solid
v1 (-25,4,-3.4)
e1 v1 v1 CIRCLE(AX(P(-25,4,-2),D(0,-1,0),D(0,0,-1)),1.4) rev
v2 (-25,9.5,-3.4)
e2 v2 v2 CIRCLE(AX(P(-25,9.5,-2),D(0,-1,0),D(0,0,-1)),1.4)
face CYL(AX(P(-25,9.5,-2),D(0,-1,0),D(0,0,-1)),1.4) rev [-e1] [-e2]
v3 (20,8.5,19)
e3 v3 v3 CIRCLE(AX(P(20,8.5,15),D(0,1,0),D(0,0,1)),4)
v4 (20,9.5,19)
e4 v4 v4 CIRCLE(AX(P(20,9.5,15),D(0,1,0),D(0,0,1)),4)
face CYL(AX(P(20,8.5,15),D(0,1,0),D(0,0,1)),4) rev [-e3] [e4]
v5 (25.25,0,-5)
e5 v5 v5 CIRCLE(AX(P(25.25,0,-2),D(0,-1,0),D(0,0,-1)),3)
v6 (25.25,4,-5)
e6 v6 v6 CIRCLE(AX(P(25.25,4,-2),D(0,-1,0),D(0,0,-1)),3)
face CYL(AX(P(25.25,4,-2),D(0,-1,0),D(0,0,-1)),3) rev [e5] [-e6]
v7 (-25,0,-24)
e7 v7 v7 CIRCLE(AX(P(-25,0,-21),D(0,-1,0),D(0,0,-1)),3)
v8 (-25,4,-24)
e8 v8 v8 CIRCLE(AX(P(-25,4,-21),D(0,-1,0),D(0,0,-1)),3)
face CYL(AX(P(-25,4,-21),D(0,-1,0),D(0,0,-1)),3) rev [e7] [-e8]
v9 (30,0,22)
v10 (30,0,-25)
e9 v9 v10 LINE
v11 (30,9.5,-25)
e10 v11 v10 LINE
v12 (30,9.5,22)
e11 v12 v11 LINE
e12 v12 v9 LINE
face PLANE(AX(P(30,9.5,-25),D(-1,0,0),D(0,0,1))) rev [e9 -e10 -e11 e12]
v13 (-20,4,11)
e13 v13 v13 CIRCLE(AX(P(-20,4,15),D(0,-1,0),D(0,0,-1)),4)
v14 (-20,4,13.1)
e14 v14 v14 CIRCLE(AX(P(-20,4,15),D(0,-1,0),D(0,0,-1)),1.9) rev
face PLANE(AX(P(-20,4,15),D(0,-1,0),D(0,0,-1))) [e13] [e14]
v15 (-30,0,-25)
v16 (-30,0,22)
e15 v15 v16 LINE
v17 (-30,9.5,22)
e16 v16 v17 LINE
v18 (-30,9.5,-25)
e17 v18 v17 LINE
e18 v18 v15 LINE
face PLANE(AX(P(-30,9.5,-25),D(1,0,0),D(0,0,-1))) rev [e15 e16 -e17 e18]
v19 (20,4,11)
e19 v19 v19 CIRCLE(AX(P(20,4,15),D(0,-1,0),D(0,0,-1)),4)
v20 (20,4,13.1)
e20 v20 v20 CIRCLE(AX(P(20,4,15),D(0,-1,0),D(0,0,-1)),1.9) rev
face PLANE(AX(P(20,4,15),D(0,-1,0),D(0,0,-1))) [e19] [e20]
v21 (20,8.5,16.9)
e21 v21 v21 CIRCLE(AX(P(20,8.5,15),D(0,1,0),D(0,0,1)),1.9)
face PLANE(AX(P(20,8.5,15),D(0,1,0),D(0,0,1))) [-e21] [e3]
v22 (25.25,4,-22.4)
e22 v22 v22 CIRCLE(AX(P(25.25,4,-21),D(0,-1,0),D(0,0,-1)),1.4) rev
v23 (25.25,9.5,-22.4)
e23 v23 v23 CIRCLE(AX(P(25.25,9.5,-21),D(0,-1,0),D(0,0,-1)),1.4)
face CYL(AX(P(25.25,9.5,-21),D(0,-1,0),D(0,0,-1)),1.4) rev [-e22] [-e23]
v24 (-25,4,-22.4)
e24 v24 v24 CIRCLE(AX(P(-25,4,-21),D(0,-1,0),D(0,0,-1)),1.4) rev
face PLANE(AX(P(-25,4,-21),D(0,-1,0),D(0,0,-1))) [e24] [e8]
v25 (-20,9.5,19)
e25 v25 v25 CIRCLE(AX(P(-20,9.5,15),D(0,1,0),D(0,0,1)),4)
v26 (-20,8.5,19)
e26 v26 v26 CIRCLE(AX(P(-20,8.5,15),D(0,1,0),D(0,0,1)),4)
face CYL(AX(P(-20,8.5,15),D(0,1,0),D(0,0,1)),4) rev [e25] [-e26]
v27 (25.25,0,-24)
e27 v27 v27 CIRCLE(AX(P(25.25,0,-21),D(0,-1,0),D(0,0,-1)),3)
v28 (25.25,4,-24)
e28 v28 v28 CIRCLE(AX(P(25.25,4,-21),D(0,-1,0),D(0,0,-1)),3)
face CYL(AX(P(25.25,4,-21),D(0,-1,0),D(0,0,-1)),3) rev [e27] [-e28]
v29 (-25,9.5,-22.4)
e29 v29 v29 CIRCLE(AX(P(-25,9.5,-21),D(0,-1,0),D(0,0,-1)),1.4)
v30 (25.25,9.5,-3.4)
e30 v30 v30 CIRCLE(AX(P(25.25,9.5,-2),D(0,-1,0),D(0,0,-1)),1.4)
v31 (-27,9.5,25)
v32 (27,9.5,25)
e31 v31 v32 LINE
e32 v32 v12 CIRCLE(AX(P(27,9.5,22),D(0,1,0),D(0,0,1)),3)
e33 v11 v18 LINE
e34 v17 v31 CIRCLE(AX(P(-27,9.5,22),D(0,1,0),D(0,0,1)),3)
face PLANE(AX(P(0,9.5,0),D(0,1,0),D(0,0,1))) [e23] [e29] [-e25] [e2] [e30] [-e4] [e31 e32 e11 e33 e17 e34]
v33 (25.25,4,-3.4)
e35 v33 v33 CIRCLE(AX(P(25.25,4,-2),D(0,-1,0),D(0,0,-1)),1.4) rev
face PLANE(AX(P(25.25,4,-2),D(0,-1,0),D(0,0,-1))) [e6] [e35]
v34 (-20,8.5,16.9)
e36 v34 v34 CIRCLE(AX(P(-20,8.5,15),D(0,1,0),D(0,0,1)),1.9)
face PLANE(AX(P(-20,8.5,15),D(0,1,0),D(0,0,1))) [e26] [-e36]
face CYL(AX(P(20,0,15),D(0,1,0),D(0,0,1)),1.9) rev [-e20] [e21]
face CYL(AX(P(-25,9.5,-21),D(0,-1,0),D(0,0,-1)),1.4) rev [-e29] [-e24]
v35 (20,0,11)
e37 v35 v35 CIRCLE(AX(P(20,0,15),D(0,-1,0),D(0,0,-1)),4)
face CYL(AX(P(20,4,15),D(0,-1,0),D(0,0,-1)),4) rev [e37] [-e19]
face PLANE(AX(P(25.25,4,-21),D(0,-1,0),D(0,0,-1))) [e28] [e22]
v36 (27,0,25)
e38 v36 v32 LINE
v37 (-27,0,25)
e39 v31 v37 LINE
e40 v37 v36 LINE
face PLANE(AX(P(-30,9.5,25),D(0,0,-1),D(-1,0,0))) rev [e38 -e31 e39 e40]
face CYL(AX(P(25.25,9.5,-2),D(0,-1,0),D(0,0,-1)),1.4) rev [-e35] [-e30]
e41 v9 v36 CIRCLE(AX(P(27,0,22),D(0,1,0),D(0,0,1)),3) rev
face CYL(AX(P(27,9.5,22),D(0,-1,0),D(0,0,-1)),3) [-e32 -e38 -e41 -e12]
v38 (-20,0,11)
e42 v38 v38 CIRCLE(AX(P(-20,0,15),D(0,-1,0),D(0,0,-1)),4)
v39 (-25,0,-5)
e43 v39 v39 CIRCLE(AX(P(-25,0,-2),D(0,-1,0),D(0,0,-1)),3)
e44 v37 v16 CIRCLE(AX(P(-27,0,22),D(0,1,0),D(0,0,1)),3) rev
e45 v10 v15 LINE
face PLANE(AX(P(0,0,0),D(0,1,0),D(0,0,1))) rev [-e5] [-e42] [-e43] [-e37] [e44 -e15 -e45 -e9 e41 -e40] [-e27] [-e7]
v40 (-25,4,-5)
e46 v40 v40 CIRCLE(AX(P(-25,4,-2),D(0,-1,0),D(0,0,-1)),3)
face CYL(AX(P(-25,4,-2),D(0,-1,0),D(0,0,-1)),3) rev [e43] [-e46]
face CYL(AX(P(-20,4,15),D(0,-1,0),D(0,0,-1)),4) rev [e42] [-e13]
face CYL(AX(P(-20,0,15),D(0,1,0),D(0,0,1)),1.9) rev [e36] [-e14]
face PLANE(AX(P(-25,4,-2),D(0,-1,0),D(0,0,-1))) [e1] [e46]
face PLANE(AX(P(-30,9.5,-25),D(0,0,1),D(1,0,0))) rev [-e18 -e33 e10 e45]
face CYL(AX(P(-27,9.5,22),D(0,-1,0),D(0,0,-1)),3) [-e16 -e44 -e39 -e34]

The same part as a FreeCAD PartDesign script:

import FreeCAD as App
import Part
import Sketcher

V = App.Vector
Q = App.Units.Quantity


def edges_at(feature, points):
    """Names of the edges that pass closest to the given points."""
    edges = feature.Shape.Edges
    near = lambda p: min(range(len(edges)), key=lambda i: edges[i].distToShape(Part.Vertex(*p))[0])
    return sorted({f"Edge{near(p) + 1}" for p in points})


def add_polygon(sketch, points):
    """Adds a closed chain of lines whose ends are joined by coincident constraints."""
    first, n = sketch.GeometryCount, len(points)
    for a, b in zip(points, points[1:] + points[:1]):
        sketch.addGeometry(Part.LineSegment(App.Vector(*a, 0), App.Vector(*b, 0)), False)
    for i in range(n):
        sketch.addConstraint(Sketcher.Constraint("Coincident", first + i, 2, first + (i + 1) % n, 1))

doc = App.newDocument("Part")
params = doc.addObject("Spreadsheet::Sheet", "Params")
for row, (alias, value) in enumerate([
    ("sketch1_width", "60 mm"),
    ("sketch1_height", "50 mm"),
    ("pad1_length", "9.5 mm"),
    ("fillet_radius", "3 mm"),
    ("sketch2_diameter", "8 mm"),
    ("pocket1_length", "1 mm"),
    ("sketch3_diameter", "3.8 mm"),
    ("sketch4_diameter", "2.8 mm"),
    ("sketch5_diameter", "8 mm"),
    ("sketch5_diameter2", "6 mm"),
    ("pocket4_length", "4 mm"),
], start=1):
    params.set(f"A{row}", alias)
    params.set(f"B{row}", "=" + value)
    params.setAlias(f"B{row}", alias)

body = doc.addObject("PartDesign::Body", "Body")

sketch1 = doc.addObject("Sketcher::SketchObject", "Sketch")
body.addObject(sketch1)
sketch1.AttachmentSupport = (doc.XZ_Plane, [""])
sketch1.MapMode = "FlatFace"
add_polygon(sketch1, [(-30, -25), (-30, 25), (30, 25), (30, -25)])
sketch1.addConstraint(Sketcher.Constraint("Vertical", 0))
sketch1.addConstraint(Sketcher.Constraint("Horizontal", 1))
sketch1.addConstraint(Sketcher.Constraint("Vertical", 2))
sketch1.addConstraint(Sketcher.Constraint("Horizontal", 3))
sketch1.addConstraint(Sketcher.Constraint("Symmetric", 0, 2, 2, 2, -1, 1))
sketch1.addConstraint(Sketcher.Constraint("DistanceX", 1, 1, 1, 2, Q("60 mm")))
sketch1.addConstraint(Sketcher.Constraint("DistanceY", 0, 1, 0, 2, Q("50 mm")))
sketch1.setExpression("Constraints[9]", "Params.sketch1_width")
sketch1.setExpression("Constraints[10]", "Params.sketch1_height")
pad1 = doc.addObject("PartDesign::Pad", "Pad")
body.addObject(pad1)
pad1.Profile = sketch1
pad1.setExpression("Length", "Params.pad1_length")
pad1.Reversed = True
doc.recompute()

fillet = doc.addObject("PartDesign::Fillet", "Fillet")
body.addObject(fillet)
fillet.Base = (pad1, edges_at(pad1, [(30, 4.75, 25), (-30, 4.75, 25)]))
fillet.setExpression("Radius", "Params.fillet_radius")

sketch2 = doc.addObject("Sketcher::SketchObject", "Sketch001")
body.addObject(sketch2)
sketch2.AttachmentSupport = (doc.XZ_Plane, [""])
sketch2.MapMode = "FlatFace"
sketch2.AttachmentOffset = App.Placement(V(0, 0, -9.5), App.Rotation())
sketch2.addGeometry(Part.Circle(V(-20, 15, 0), V(0, 0, 1), 4), False)
sketch2.addGeometry(Part.Circle(V(20, 15, 0), V(0, 0, 1), 4), False)
sketch2.addConstraint(Sketcher.Constraint("Equal", 0, 1))
sketch2.addConstraint(Sketcher.Constraint("Symmetric", 0, 3, 1, 3, -2))
sketch2.addConstraint(Sketcher.Constraint("Diameter", 0, Q("8 mm")))
sketch2.addConstraint(Sketcher.Constraint("DistanceX", 0, 3, -1, 1, Q("20 mm")))
sketch2.addConstraint(Sketcher.Constraint("DistanceY", -1, 1, 0, 3, Q("15 mm")))
sketch2.setExpression("Constraints[2]", "Params.sketch2_diameter")
pocket1 = doc.addObject("PartDesign::Pocket", "Pocket")
body.addObject(pocket1)
pocket1.Profile = sketch2
pocket1.setExpression("Length", "Params.pocket1_length")
pocket1.Reversed = True

sketch3 = doc.addObject("Sketcher::SketchObject", "Sketch002")
body.addObject(sketch3)
sketch3.AttachmentSupport = (doc.XZ_Plane, [""])
sketch3.MapMode = "FlatFace"
sketch3.AttachmentOffset = App.Placement(V(0, 0, -9.5), App.Rotation())
sketch3.addGeometry(Part.Circle(V(-20, 15, 0), V(0, 0, 1), 1.9), False)
sketch3.addGeometry(Part.Circle(V(20, 15, 0), V(0, 0, 1), 1.9), False)
sketch3.addConstraint(Sketcher.Constraint("Equal", 0, 1))
sketch3.addConstraint(Sketcher.Constraint("Symmetric", 0, 3, 1, 3, -2))
sketch3.addConstraint(Sketcher.Constraint("Diameter", 0, Q("3.8 mm")))
sketch3.addConstraint(Sketcher.Constraint("DistanceX", 0, 3, -1, 1, Q("20 mm")))
sketch3.addConstraint(Sketcher.Constraint("DistanceY", -1, 1, 0, 3, Q("15 mm")))
sketch3.setExpression("Constraints[2]", "Params.sketch3_diameter")
pocket2 = doc.addObject("PartDesign::Pocket", "Pocket001")
body.addObject(pocket2)
pocket2.Profile = sketch3
pocket2.Type = "ThroughAll"
pocket2.Reversed = True

sketch4 = doc.addObject("Sketcher::SketchObject", "Sketch003")
body.addObject(sketch4)
sketch4.AttachmentSupport = (doc.XZ_Plane, [""])
sketch4.MapMode = "FlatFace"
sketch4.addGeometry(Part.Circle(V(-25, -21, 0), V(0, 0, 1), 1.4), False)
sketch4.addGeometry(Part.Circle(V(-25, -2, 0), V(0, 0, 1), 1.4), False)
sketch4.addGeometry(Part.Circle(V(25.25, -21, 0), V(0, 0, 1), 1.4), False)
sketch4.addGeometry(Part.Circle(V(25.25, -2, 0), V(0, 0, 1), 1.4), False)
sketch4.addConstraint(Sketcher.Constraint("Equal", 0, 1))
sketch4.addConstraint(Sketcher.Constraint("Equal", 1, 2))
sketch4.addConstraint(Sketcher.Constraint("Equal", 2, 3))
sketch4.addConstraint(Sketcher.Constraint("Horizontal", 0, 3, 2, 3))
sketch4.addConstraint(Sketcher.Constraint("Horizontal", 1, 3, 3, 3))
sketch4.addConstraint(Sketcher.Constraint("Vertical", 0, 3, 1, 3))
sketch4.addConstraint(Sketcher.Constraint("Vertical", 2, 3, 3, 3))
sketch4.addConstraint(Sketcher.Constraint("Diameter", 0, Q("2.8 mm")))
sketch4.addConstraint(Sketcher.Constraint("DistanceX", 0, 3, -1, 1, Q("25 mm")))
sketch4.addConstraint(Sketcher.Constraint("DistanceY", 0, 3, -1, 1, Q("21 mm")))
sketch4.addConstraint(Sketcher.Constraint("DistanceY", 1, 3, -1, 1, Q("2 mm")))
sketch4.addConstraint(Sketcher.Constraint("DistanceX", -1, 1, 2, 3, Q("25.25 mm")))
sketch4.setExpression("Constraints[7]", "Params.sketch4_diameter")
pocket3 = doc.addObject("PartDesign::Pocket", "Pocket002")
body.addObject(pocket3)
pocket3.Profile = sketch4
pocket3.Type = "ThroughAll"

sketch5 = doc.addObject("Sketcher::SketchObject", "Sketch004")
body.addObject(sketch5)
sketch5.AttachmentSupport = (doc.XZ_Plane, [""])
sketch5.MapMode = "FlatFace"
sketch5.AttachmentOffset = App.Placement(V(0, 0, -4), App.Rotation())
sketch5.addGeometry(Part.Circle(V(-20, 15, 0), V(0, 0, 1), 4), False)
sketch5.addGeometry(Part.Circle(V(20, 15, 0), V(0, 0, 1), 4), False)
sketch5.addGeometry(Part.Circle(V(25.25, -2, 0), V(0, 0, 1), 3), False)
sketch5.addGeometry(Part.Circle(V(25.25, -21, 0), V(0, 0, 1), 3), False)
sketch5.addGeometry(Part.Circle(V(-25, -21, 0), V(0, 0, 1), 3), False)
sketch5.addGeometry(Part.Circle(V(-25, -2, 0), V(0, 0, 1), 3), False)
sketch5.addConstraint(Sketcher.Constraint("Equal", 0, 1))
sketch5.addConstraint(Sketcher.Constraint("Equal", 2, 3))
sketch5.addConstraint(Sketcher.Constraint("Equal", 3, 4))
sketch5.addConstraint(Sketcher.Constraint("Equal", 4, 5))
sketch5.addConstraint(Sketcher.Constraint("Symmetric", 0, 3, 1, 3, -2))
sketch5.addConstraint(Sketcher.Constraint("Horizontal", 3, 3, 4, 3))
sketch5.addConstraint(Sketcher.Constraint("Horizontal", 2, 3, 5, 3))
sketch5.addConstraint(Sketcher.Constraint("Vertical", 2, 3, 3, 3))
sketch5.addConstraint(Sketcher.Constraint("Vertical", 4, 3, 5, 3))
sketch5.addConstraint(Sketcher.Constraint("Diameter", 0, Q("8 mm")))
sketch5.addConstraint(Sketcher.Constraint("Diameter", 2, Q("6 mm")))
sketch5.addConstraint(Sketcher.Constraint("DistanceX", 0, 3, -1, 1, Q("20 mm")))
sketch5.addConstraint(Sketcher.Constraint("DistanceY", -1, 1, 0, 3, Q("15 mm")))
sketch5.addConstraint(Sketcher.Constraint("DistanceY", 2, 3, -1, 1, Q("2 mm")))
sketch5.addConstraint(Sketcher.Constraint("DistanceY", 3, 3, -1, 1, Q("21 mm")))
sketch5.addConstraint(Sketcher.Constraint("DistanceX", 4, 3, -1, 1, Q("25 mm")))
sketch5.addConstraint(Sketcher.Constraint("DistanceX", -1, 1, 2, 3, Q("25.25 mm")))
sketch5.setExpression("Constraints[9]", "Params.sketch5_diameter")
sketch5.setExpression("Constraints[10]", "Params.sketch5_diameter2")
pocket4 = doc.addObject("PartDesign::Pocket", "Pocket003")
body.addObject(pocket4)
pocket4.Profile = sketch5
pocket4.setExpression("Length", "Params.pocket4_length")
pocket4.Reversed = True

doc.recompute()
